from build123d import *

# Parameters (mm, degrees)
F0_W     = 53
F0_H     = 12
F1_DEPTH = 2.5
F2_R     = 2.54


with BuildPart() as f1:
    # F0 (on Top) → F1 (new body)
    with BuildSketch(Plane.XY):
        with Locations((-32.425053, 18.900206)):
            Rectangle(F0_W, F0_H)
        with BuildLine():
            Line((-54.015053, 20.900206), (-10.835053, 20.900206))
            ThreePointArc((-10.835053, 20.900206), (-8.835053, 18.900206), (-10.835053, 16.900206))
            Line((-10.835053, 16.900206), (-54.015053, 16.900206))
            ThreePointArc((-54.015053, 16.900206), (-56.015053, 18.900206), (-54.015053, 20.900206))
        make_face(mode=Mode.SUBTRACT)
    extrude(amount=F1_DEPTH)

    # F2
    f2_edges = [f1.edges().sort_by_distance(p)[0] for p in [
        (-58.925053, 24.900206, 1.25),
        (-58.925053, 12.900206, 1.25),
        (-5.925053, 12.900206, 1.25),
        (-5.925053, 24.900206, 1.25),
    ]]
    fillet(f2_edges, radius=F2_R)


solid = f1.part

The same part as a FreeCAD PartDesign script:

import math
import FreeCAD as App
import Part
import Sketcher
from FreeCAD import Vector
Q = App.Units.Quantity


def edges_at(feature, points):
    """Names of the edges that pass closest to the given points."""
    edges = feature.Shape.Edges
    near = lambda p: min(range(len(edges)), key=lambda i: edges[i].distToShape(Part.Vertex(*p))[0])
    return sorted({f"Edge{near(p) + 1}" for p in points})

doc = App.newDocument("Part")
body = doc.addObject("PartDesign::Body", "Body")

# Sketch on XY plane
sketch1 = doc.addObject("Sketcher::SketchObject", "Sketch")
body.addObject(sketch1)
sketch1.AttachmentSupport = (doc.XY_Plane, [""])
sketch1.MapMode = "FlatFace"
sketch1.addGeometry(Part.LineSegment(Vector(-58.9, 24.9, 0), Vector(-58.9, 12.9, 0)), False)
sketch1.addGeometry(Part.LineSegment(Vector(-58.9, 12.9, 0), Vector(-5.9, 12.9, 0)), False)
sketch1.addGeometry(Part.LineSegment(Vector(-5.9, 12.9, 0), Vector(-5.9, 24.9, 0)), False)
sketch1.addGeometry(Part.LineSegment(Vector(-5.9, 24.9, 0), Vector(-58.9, 24.9, 0)), False)
sketch1.addGeometry(Part.ArcOfCircle(Part.Circle(Vector(-54, 18.9, 0), Vector(0, 0, 1), 2), math.radians(90), math.radians(270)), False)
sketch1.addGeometry(Part.LineSegment(Vector(-54, 20.9, 0), Vector(-10.8, 20.9, 0)), False)
sketch1.addGeometry(Part.ArcOfCircle(Part.Circle(Vector(-10.8, 18.9, 0), Vector(0, 0, 1), 2), math.radians(-90), math.radians(90)), False)
sketch1.addGeometry(Part.LineSegment(Vector(-10.8, 16.9, 0), Vector(-54, 16.9, 0)), False)
sketch1.addConstraint(Sketcher.Constraint("Coincident", 0, 2, 1, 1))
sketch1.addConstraint(Sketcher.Constraint("Coincident", 1, 2, 2, 1))
sketch1.addConstraint(Sketcher.Constraint("Coincident", 2, 2, 3, 1))
sketch1.addConstraint(Sketcher.Constraint("Coincident", 3, 2, 0, 1))
sketch1.addConstraint(Sketcher.Constraint("Tangent", 4, 1, 5, 1))
sketch1.addConstraint(Sketcher.Constraint("Tangent", 5, 2, 6, 2))
sketch1.addConstraint(Sketcher.Constraint("Tangent", 6, 1, 7, 1))
sketch1.addConstraint(Sketcher.Constraint("Tangent", 7, 2, 4, 2))
sketch1.addConstraint(Sketcher.Constraint("Vertical", 0))
sketch1.addConstraint(Sketcher.Constraint("Horizontal", 1))
sketch1.addConstraint(Sketcher.Constraint("Vertical", 2))
sketch1.addConstraint(Sketcher.Constraint("Horizontal", 3))
sketch1.addConstraint(Sketcher.Constraint("Horizontal", 5))
sketch1.addConstraint(Sketcher.Constraint("Horizontal", 7))
sketch1.addConstraint(Sketcher.Constraint("Radius", 4, Q("2 mm")))
sketch1.addConstraint(Sketcher.Constraint("DistanceX", 1, 1, 1, 2, Q("53 mm")))
sketch1.addConstraint(Sketcher.Constraint("DistanceY", 0, 2, 0, 1, Q("12 mm")))
sketch1.addConstraint(Sketcher.Constraint("DistanceY", 0, 2, 4, 3, Q("6 mm")))
sketch1.addConstraint(Sketcher.Constraint("DistanceX", 5, 1, 5, 2, Q("43.18 mm")))
sketch1.addConstraint(Sketcher.Constraint("DistanceX", 0, 2, 4, 3, Q("4.91 mm")))
sketch1.addConstraint(Sketcher.Constraint("DistanceX", 4, 3, -1, 1, Q("54.015053 mm")))
sketch1.addConstraint(Sketcher.Constraint("DistanceY", -1, 1, 4, 3, Q("18.900206 mm")))
pad1 = doc.addObject("PartDesign::Pad", "Pad")
body.addObject(pad1)
pad1.Profile = sketch1
pad1.Length = 2.5
doc.recompute()

fillet = doc.addObject("PartDesign::Fillet", "Fillet")
body.addObject(fillet)
fillet.Base = (pad1, edges_at(pad1, [
    (-58.925, 24.9, 1.25),
    (-58.925, 12.9, 1.25),
    (-5.925, 12.9, 1.25),
    (-5.925, 24.9, 1.25),
]))
fillet.Radius = 2.54

doc.recompute()
